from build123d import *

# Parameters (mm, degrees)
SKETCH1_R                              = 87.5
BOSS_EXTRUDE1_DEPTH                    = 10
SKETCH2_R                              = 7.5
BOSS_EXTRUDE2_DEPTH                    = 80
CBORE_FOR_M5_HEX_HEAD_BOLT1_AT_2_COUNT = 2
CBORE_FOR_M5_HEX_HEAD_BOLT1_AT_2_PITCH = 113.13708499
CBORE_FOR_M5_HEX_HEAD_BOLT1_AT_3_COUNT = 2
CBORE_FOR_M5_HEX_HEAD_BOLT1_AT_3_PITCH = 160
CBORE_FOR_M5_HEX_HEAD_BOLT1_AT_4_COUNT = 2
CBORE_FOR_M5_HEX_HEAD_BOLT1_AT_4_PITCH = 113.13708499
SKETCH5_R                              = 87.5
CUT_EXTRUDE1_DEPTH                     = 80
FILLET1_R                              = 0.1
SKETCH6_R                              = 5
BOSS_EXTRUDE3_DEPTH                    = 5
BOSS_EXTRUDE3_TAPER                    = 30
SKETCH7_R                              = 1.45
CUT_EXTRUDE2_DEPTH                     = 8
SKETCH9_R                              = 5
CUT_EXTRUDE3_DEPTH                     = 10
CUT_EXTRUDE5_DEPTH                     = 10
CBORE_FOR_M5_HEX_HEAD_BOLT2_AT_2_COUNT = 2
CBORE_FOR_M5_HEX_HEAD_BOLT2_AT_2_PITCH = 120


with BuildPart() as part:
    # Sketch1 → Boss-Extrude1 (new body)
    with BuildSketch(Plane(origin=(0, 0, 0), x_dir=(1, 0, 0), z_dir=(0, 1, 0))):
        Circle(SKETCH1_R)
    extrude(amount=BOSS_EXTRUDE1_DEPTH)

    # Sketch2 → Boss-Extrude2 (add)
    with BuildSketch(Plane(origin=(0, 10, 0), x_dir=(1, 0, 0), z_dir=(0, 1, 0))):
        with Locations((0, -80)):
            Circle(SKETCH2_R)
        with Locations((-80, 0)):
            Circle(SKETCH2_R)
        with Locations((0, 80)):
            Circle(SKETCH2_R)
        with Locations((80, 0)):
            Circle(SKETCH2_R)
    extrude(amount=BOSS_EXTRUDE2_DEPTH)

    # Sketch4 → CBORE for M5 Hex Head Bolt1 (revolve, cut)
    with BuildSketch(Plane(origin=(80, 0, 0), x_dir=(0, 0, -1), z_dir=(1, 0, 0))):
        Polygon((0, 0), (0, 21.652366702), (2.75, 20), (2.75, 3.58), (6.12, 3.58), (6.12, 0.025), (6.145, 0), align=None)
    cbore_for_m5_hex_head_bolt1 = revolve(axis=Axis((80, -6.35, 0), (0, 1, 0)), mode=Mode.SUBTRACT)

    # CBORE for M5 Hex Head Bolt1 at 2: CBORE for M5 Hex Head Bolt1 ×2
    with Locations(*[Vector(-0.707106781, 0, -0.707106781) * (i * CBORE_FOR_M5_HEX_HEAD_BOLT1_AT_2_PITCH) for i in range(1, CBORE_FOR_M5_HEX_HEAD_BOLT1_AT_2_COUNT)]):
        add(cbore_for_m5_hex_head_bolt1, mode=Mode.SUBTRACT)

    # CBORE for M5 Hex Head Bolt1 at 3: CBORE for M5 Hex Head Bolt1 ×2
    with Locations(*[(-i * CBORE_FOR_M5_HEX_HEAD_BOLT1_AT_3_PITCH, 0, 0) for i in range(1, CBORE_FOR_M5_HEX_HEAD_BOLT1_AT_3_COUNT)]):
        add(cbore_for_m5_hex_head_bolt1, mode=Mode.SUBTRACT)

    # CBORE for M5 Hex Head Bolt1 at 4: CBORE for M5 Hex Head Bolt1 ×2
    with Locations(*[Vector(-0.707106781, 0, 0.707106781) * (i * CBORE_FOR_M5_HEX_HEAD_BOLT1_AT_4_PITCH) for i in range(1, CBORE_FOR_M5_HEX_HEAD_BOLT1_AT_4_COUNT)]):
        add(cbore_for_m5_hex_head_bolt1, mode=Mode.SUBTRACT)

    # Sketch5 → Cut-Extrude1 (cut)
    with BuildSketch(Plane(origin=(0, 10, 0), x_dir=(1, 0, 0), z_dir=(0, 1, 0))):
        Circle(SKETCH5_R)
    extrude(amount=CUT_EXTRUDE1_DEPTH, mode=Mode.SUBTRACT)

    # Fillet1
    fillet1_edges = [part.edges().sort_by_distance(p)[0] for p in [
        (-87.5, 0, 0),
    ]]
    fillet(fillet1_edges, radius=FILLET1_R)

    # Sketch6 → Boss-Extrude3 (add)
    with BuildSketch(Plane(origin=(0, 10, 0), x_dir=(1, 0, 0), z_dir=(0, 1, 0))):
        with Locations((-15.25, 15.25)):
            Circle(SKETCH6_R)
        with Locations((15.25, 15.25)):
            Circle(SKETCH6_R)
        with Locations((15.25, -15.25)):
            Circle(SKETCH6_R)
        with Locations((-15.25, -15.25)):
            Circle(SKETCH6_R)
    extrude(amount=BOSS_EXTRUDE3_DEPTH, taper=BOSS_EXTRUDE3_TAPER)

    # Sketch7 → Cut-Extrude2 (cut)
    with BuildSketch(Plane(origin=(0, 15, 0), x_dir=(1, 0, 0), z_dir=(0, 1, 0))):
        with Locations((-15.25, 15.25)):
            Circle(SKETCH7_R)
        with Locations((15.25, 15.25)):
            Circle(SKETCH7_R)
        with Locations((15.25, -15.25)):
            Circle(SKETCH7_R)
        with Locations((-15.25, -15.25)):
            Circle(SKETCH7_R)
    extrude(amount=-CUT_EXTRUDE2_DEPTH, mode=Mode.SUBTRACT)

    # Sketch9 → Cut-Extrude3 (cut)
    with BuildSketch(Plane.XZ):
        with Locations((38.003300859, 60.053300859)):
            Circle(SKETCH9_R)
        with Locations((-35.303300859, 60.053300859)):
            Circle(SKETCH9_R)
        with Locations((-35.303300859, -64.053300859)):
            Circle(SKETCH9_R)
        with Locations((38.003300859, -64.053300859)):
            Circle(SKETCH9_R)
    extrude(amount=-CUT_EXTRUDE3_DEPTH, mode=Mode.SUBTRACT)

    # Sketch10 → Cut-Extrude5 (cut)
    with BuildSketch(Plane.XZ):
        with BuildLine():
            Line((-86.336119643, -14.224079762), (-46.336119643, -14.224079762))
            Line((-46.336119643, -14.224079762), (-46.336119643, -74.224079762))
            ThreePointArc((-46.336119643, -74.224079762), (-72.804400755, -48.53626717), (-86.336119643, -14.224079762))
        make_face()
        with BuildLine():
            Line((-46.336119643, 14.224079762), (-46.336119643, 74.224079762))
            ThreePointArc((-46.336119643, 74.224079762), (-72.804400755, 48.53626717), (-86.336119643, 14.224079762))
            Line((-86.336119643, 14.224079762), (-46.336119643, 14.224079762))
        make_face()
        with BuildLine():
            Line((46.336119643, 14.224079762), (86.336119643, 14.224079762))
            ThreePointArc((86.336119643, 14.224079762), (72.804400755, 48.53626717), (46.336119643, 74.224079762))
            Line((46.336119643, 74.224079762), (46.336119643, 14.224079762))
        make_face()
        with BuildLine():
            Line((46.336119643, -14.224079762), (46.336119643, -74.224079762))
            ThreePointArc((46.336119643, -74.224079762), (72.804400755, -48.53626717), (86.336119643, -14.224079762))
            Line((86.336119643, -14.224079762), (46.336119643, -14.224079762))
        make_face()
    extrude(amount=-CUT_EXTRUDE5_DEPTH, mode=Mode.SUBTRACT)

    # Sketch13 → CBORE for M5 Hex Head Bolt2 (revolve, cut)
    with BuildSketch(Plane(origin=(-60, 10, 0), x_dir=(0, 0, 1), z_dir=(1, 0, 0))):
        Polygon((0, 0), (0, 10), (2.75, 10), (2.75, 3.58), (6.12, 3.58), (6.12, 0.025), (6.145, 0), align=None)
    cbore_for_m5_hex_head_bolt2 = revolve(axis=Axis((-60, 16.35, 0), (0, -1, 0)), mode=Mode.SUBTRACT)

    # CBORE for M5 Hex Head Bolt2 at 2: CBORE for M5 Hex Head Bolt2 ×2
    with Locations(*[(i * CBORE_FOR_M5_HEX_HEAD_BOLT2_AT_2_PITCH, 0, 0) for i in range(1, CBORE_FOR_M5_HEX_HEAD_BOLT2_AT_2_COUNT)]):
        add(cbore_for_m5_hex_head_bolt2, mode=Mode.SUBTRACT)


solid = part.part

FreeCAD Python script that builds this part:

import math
import FreeCAD as App
import Part
import Sketcher
from FreeCAD import Vector
Q = App.Units.Quantity


def edges_at(feature, points):
    """Names of the edges that pass closest to the given points."""
    edges = feature.Shape.Edges
    near = lambda p: min(range(len(edges)), key=lambda i: edges[i].distToShape(Part.Vertex(*p))[0])
    return sorted({f"Edge{near(p) + 1}" for p in points})


def add_polygon(sketch, points):
    """Adds a closed chain of lines whose ends are joined by coincident constraints."""
    first, n = sketch.GeometryCount, len(points)
    for a, b in zip(points, points[1:] + points[:1]):
        sketch.addGeometry(Part.LineSegment(App.Vector(*a, 0), App.Vector(*b, 0)), False)
    for i in range(n):
        sketch.addConstraint(Sketcher.Constraint("Coincident", first + i, 2, first + (i + 1) % n, 1))

doc = App.newDocument("Part")
body = doc.addObject("PartDesign::Body", "Body")

# Sketch on XZ plane
sketch1 = body.newObject("Sketcher::SketchObject", "Sketch")
sketch1.AttachmentSupport = (doc.getObject("XZ_Plane"), [""])
sketch1.MapMode = "FlatFace"
sketch1.addGeometry(Part.Circle(Vector(0, 0, 0), Vector(0, 0, 1), 88), False)
sketch1.addConstraint([
    Sketcher.Constraint("Coincident", 0, 3, -1, 1),
    Sketcher.Constraint("Diameter", 0, Q("175 mm")),
])
pad1 = body.newObject("PartDesign::Pad", "Pad")
pad1.Profile = sketch1
pad1.Length = 10
pad1.Reversed = True

# Sketch on XZ plane
sketch2 = body.newObject("Sketcher::SketchObject", "Sketch001")
sketch2.AttachmentSupport = (doc.getObject("XZ_Plane"), [""])
sketch2.MapMode = "FlatFace"
sketch2.AttachmentOffset = App.Placement(Vector(0, 0, -10), App.Rotation())
sketch2.addGeometry([
    Part.Circle(Vector(0, 80, 0), Vector(0, 0, 1), 8),
    Part.Circle(Vector(-80, 0, 0), Vector(0, 0, 1), 8),
    Part.Circle(Vector(0, -80, 0), Vector(0, 0, 1), 8),
    Part.Circle(Vector(80, 0, 0), Vector(0, 0, 1), 8),
], False)
sketch2.addConstraint([
    Sketcher.Constraint("Equal", 0, 1),
    Sketcher.Constraint("Equal", 1, 2),
    Sketcher.Constraint("Equal", 2, 3),
    Sketcher.Constraint("Symmetric", 0, 3, 2, 3, -1, 1),
    Sketcher.Constraint("Symmetric", 1, 3, 3, 3, -1, 1),
    Sketcher.Constraint("PointOnObject", 0, 3, -2),
    Sketcher.Constraint("PointOnObject", 1, 3, -1),
    Sketcher.Constraint("Diameter", 0, Q("15 mm")),
    Sketcher.Constraint("DistanceY", -1, 1, 0, 3, Q("80 mm")),
    Sketcher.Constraint("DistanceX", 1, 3, -1, 1, Q("80 mm")),
])
pad2 = body.newObject("PartDesign::Pad", "Pad001")
pad2.Profile = sketch2
pad2.Length = 80
pad2.Reversed = True

# Sketch on YZ plane
sketch3 = body.newObject("Sketcher::SketchObject", "Sketch002")
sketch3.AttachmentSupport = (doc.getObject("YZ_Plane"), [""])
sketch3.MapMode = "FlatFace"
sketch3.AttachmentOffset = App.Placement(Vector(0, 0, 80), App.Rotation())
add_polygon(sketch3, [(21.652, 0), (0, 0), (0, -6.145), (0.025, -6.12), (3.58, -6.12), (3.58, -2.75), (20, -2.75)])  # lines 0-6
sketch3.addConstraint([
    Sketcher.Constraint("Horizontal", 0),
    Sketcher.Constraint("Vertical", 1),
    Sketcher.Constraint("Horizontal", 3),
    Sketcher.Constraint("Vertical", 4),
    Sketcher.Constraint("Horizontal", 5),
    Sketcher.Constraint("Coincident", 0, 2, -1, 1),
    Sketcher.Constraint("Angle", 2, Q("45 deg")),
    Sketcher.Constraint("Angle", 6, Q("59 deg")),
    Sketcher.Constraint("DistanceX", -1, 1, 5, 2, Q("20 mm")),
    Sketcher.Constraint("DistanceX", 5, 1, 5, 2, Q("16.42 mm")),
    Sketcher.Constraint("DistanceY", 4, 1, 4, 2, Q("3.37 mm")),
    Sketcher.Constraint("DistanceX", 3, 1, 3, 2, Q("3.555 mm")),
    Sketcher.Constraint("DistanceY", 1, 2, 1, 1, Q("6.145 mm")),
])
groove = body.newObject("PartDesign::Groove", "Groove")
groove.Profile = sketch3
groove.ReferenceAxis = (sketch3, ["H_Axis"])
groove.Angle = 360
doc.recompute()

datumline = body.newObject("PartDesign::Line", "DatumLine")
datumline.Placement = App.Placement(Vector(0, 0, 0), App.Rotation(Vector(0, 0, 1), Vector(-0.707106781, 0, -0.707106781)))
linearpattern = body.newObject("PartDesign::LinearPattern", "LinearPattern")
linearpattern.Originals = [groove]
linearpattern.Direction = (datumline, [""])
linearpattern.Mode = "offset"
linearpattern.Offset = 113.137085
linearpattern.Occurrences = 2
body.Tip = linearpattern
doc.recompute()

linearpattern2 = body.newObject("PartDesign::LinearPattern", "LinearPattern001")
linearpattern2.Originals = [groove]
linearpattern2.Direction = (doc.getObject("X_Axis"), [""])
linearpattern2.Mode = "offset"
linearpattern2.Offset = 160
linearpattern2.Occurrences = 2
linearpattern2.Reversed = True
body.Tip = linearpattern2
doc.recompute()

datumline2 = body.newObject("PartDesign::Line", "DatumLine001")
datumline2.Placement = App.Placement(Vector(0, 0, 0), App.Rotation(Vector(0, 0, 1), Vector(-0.707106781, 0, 0.707106781)))
linearpattern3 = body.newObject("PartDesign::LinearPattern", "LinearPattern002")
linearpattern3.Originals = [groove]
linearpattern3.Direction = (datumline2, [""])
linearpattern3.Mode = "offset"
linearpattern3.Offset = 113.137085
linearpattern3.Occurrences = 2
body.Tip = linearpattern3

# Sketch on XZ plane
sketch4 = body.newObject("Sketcher::SketchObject", "Sketch003")
sketch4.AttachmentSupport = (doc.getObject("XZ_Plane"), [""])
sketch4.MapMode = "FlatFace"
sketch4.AttachmentOffset = App.Placement(Vector(0, 0, -10), App.Rotation())
sketch4.addGeometry(Part.Circle(Vector(0, 0, 0), Vector(0, 0, 1), 88), False)
sketch4.addConstraint([
    Sketcher.Constraint("Coincident", 0, 3, -1, 1),
    Sketcher.Constraint("Diameter", 0, Q("175 mm")),
])
pocket1 = body.newObject("PartDesign::Pocket", "Pocket")
pocket1.Profile = sketch4
pocket1.Length = 80
doc.recompute()

fillet = body.newObject("PartDesign::Fillet", "Fillet")
fillet.Base = (pocket1, edges_at(pocket1, [(-87.5, 0, 0)]))
fillet.Radius = 0.1

# Sketch on XZ plane
sketch5 = body.newObject("Sketcher::SketchObject", "Sketch004")
sketch5.AttachmentSupport = (doc.getObject("XZ_Plane"), [""])
sketch5.MapMode = "FlatFace"
sketch5.AttachmentOffset = App.Placement(Vector(0, 0, -10), App.Rotation())
sketch5.addGeometry([
    Part.Circle(Vector(-15, -15, 0), Vector(0, 0, 1), 5),
    Part.Circle(Vector(15, -15, 0), Vector(0, 0, 1), 5),
    Part.Circle(Vector(15, 15, 0), Vector(0, 0, 1), 5),
    Part.Circle(Vector(-15, 15, 0), Vector(0, 0, 1), 5),
], False)
sketch5.addConstraint([
    Sketcher.Constraint("Equal", 0, 1),
    Sketcher.Constraint("Equal", 1, 2),
    Sketcher.Constraint("Equal", 2, 3),
    Sketcher.Constraint("Symmetric", 0, 3, 2, 3, -1, 1),
    Sketcher.Constraint("Symmetric", 1, 3, 3, 3, -1, 1),
    Sketcher.Constraint("Symmetric", 0, 3, 1, 3, -2),
    Sketcher.Constraint("Diameter", 0, Q("10 mm")),
    Sketcher.Constraint("DistanceX", 0, 3, 1, 3, Q("30.5 mm")),
    Sketcher.Constraint("DistanceY", 1, 3, 2, 3, Q("30.5 mm")),
])
pad3 = body.newObject("PartDesign::Pad", "Pad002")
pad3.Profile = sketch5
pad3.Length = 5
pad3.Reversed = True
pad3.TaperAngle = -30

# Sketch on XZ plane
sketch6 = body.newObject("Sketcher::SketchObject", "Sketch005")
sketch6.AttachmentSupport = (doc.getObject("XZ_Plane"), [""])
sketch6.MapMode = "FlatFace"
sketch6.AttachmentOffset = App.Placement(Vector(0, 0, -15), App.Rotation())
sketch6.addGeometry([
    Part.Circle(Vector(-15.2, -15.2, 0), Vector(0, 0, 1), 1.4),
    Part.Circle(Vector(15.2, -15.2, 0), Vector(0, 0, 1), 1.4),
    Part.Circle(Vector(15.2, 15.2, 0), Vector(0, 0, 1), 1.4),
    Part.Circle(Vector(-15.2, 15.2, 0), Vector(0, 0, 1), 1.4),
], False)
sketch6.addConstraint([
    Sketcher.Constraint("Equal", 0, 1),
    Sketcher.Constraint("Equal", 1, 2),
    Sketcher.Constraint("Equal", 2, 3),
    Sketcher.Constraint("Symmetric", 0, 3, 2, 3, -1, 1),
    Sketcher.Constraint("Symmetric", 1, 3, 3, 3, -1, 1),
    Sketcher.Constraint("Symmetric", 0, 3, 1, 3, -2),
    Sketcher.Constraint("Diameter", 0, Q("2.9 mm")),
    Sketcher.Constraint("DistanceX", 0, 3, 1, 3, Q("30.5 mm")),
    Sketcher.Constraint("DistanceY", 1, 3, 2, 3, Q("30.5 mm")),
])
pocket2 = body.newObject("PartDesign::Pocket", "Pocket001")
pocket2.Profile = sketch6
pocket2.Length = 8
pocket2.Reversed = True

# Sketch on XZ plane
sketch7 = body.newObject("Sketcher::SketchObject", "Sketch006")
sketch7.AttachmentSupport = (doc.getObject("XZ_Plane"), [""])
sketch7.MapMode = "FlatFace"
sketch7.addGeometry([
    Part.Circle(Vector(38, 60, 0), Vector(0, 0, 1), 5),
    Part.Circle(Vector(-35, 60, 0), Vector(0, 0, 1), 5),
    Part.Circle(Vector(-35, -64, 0), Vector(0, 0, 1), 5),
    Part.Circle(Vector(38, -64, 0), Vector(0, 0, 1), 5),
], False)
sketch7.addConstraint([
    Sketcher.Constraint("Equal", 0, 1),
    Sketcher.Constraint("Equal", 1, 2),
    Sketcher.Constraint("Equal", 2, 3),
    Sketcher.Constraint("Horizontal", 0, 3, 1, 3),
    Sketcher.Constraint("Horizontal", 2, 3, 3, 3),
    Sketcher.Constraint("Vertical", 1, 3, 2, 3),
    Sketcher.Constraint("Vertical", 0, 3, 3, 3),
    Sketcher.Constraint("Diameter", 0, Q("10 mm")),
    Sketcher.Constraint("DistanceX", -1, 1, 0, 3, Q("38.003301 mm")),
    Sketcher.Constraint("DistanceY", -1, 1, 0, 3, Q("60.053301 mm")),
    Sketcher.Constraint("DistanceX", 1, 3, -1, 1, Q("35.303301 mm")),
    Sketcher.Constraint("DistanceY", 2, 3, -1, 1, Q("64.053301 mm")),
])
pocket3 = body.newObject("PartDesign::Pocket", "Pocket002")
pocket3.Profile = sketch7
pocket3.Length = 10

# Sketch on XZ plane
sketch8 = body.newObject("Sketcher::SketchObject", "Sketch007")
sketch8.AttachmentSupport = (doc.getObject("XZ_Plane"), [""])
sketch8.MapMode = "FlatFace"
sketch8.addGeometry([
    Part.LineSegment(Vector(-46, -14, 0), Vector(-86, -14, 0)),  # 0
    Part.ArcOfCircle(Part.Circle(Vector(0, 0, 0), Vector(0, 0, 1), 88), math.radians(-171), math.radians(-122)),  # 1
    Part.LineSegment(Vector(-46, -74, 0), Vector(-46, -14, 0)),  # 2
    Part.LineSegment(Vector(-46, 14, 0), Vector(-46, 74, 0)),  # 3
    Part.ArcOfCircle(Part.Circle(Vector(0, 0, 0), Vector(0, 0, 1), 88), math.radians(122), math.radians(171)),  # 4
    Part.LineSegment(Vector(-86, 14, 0), Vector(-46, 14, 0)),  # 5
    Part.LineSegment(Vector(46, 14, 0), Vector(86, 14, 0)),  # 6
    Part.ArcOfCircle(Part.Circle(Vector(0, 0, 0), Vector(0, 0, 1), 88), math.radians(9), math.radians(58)),  # 7
    Part.LineSegment(Vector(46, 74, 0), Vector(46, 14, 0)),  # 8
    Part.LineSegment(Vector(46, -14, 0), Vector(46, -74, 0)),  # 9
    Part.ArcOfCircle(Part.Circle(Vector(0, 0, 0), Vector(0, 0, 1), 88), math.radians(-58), math.radians(-9)),  # 10
    Part.LineSegment(Vector(86, -14, 0), Vector(46, -14, 0)),  # 11
], False)
sketch8.addConstraint([
    Sketcher.Constraint("Coincident", 0, 2, 1, 1),
    Sketcher.Constraint("Coincident", 1, 2, 2, 1),
    Sketcher.Constraint("Coincident", 2, 2, 0, 1),
    Sketcher.Constraint("Coincident", 3, 2, 4, 1),
    Sketcher.Constraint("Coincident", 4, 2, 5, 1),
    Sketcher.Constraint("Coincident", 5, 2, 3, 1),
    Sketcher.Constraint("Coincident", 6, 2, 7, 1),
    Sketcher.Constraint("Coincident", 7, 2, 8, 1),
    Sketcher.Constraint("Coincident", 8, 2, 6, 1),
    Sketcher.Constraint("Coincident", 9, 2, 10, 1),
    Sketcher.Constraint("Coincident", 10, 2, 11, 1),
    Sketcher.Constraint("Coincident", 11, 2, 9, 1),
    Sketcher.Constraint("Horizontal", 0),
    Sketcher.Constraint("Vertical", 2),
    Sketcher.Constraint("Vertical", 3),
    Sketcher.Constraint("Horizontal", 5),
    Sketcher.Constraint("Horizontal", 6),
    Sketcher.Constraint("Vertical", 8),
    Sketcher.Constraint("Vertical", 9),
    Sketcher.Constraint("Horizontal", 11),
    Sketcher.Constraint("Coincident", 1, 3, -1, 1),
    Sketcher.Constraint("Coincident", 4, 3, -1, 1),
    Sketcher.Constraint("Coincident", 7, 3, -1, 1),
    Sketcher.Constraint("Coincident", 10, 3, -1, 1),
    Sketcher.Constraint("Equal", 1, 4),
    Sketcher.Constraint("Equal", 4, 7),
    Sketcher.Constraint("Equal", 7, 10),
    Sketcher.Constraint("Symmetric", 2, 2, 8, 2, -1, 1),
    Sketcher.Constraint("Symmetric", 5, 2, 11, 2, -1, 1),
    Sketcher.Constraint("Symmetric", 5, 2, 8, 2, -2),
    Sketcher.Constraint("Radius", 1, Q("87.5 mm")),
    Sketcher.Constraint("DistanceX", 0, 2, 0, 1, Q("40 mm")),
    Sketcher.Constraint("DistanceY", 2, 1, 2, 2, Q("60 mm")),
])
pocket4 = body.newObject("PartDesign::Pocket", "Pocket003")
pocket4.Profile = sketch8
pocket4.Length = 10

# Sketch on YZ plane
sketch9 = body.newObject("Sketcher::SketchObject", "Sketch008")
sketch9.AttachmentSupport = (doc.getObject("YZ_Plane"), [""])
sketch9.MapMode = "FlatFace"
sketch9.AttachmentOffset = App.Placement(Vector(0, 0, -60), App.Rotation())
add_polygon(sketch9, [(0, 0), (10, 0), (10, 6.145), (9.975, 6.12), (6.42, 6.12), (6.42, 2.75), (0, 2.75)])  # lines 0-6
sketch9.addConstraint([
    Sketcher.Constraint("Horizontal", 0),
    Sketcher.Constraint("Vertical", 1),
    Sketcher.Constraint("Horizontal", 3),
    Sketcher.Constraint("Vertical", 4),
    Sketcher.Constraint("Horizontal", 5),
    Sketcher.Constraint("Vertical", 6),
    Sketcher.Constraint("Coincident", 6, 2, -1, 1),
    Sketcher.Constraint("DistanceX", 0, 1, 0, 2, Q("10 mm")),
    Sketcher.Constraint("Angle", 2, Q("-135 deg")),
    Sketcher.Constraint("DistanceX", 5, 2, 5, 1, Q("6.42 mm")),
    Sketcher.Constraint("DistanceY", 4, 2, 4, 1, Q("3.37 mm")),
    Sketcher.Constraint("DistanceY", 6, 2, 6, 1, Q("2.75 mm")),
    Sketcher.Constraint("DistanceX", 3, 2, 3, 1, Q("3.555 mm")),
])
groove2 = body.newObject("PartDesign::Groove", "Groove001")
groove2.Profile = sketch9
groove2.ReferenceAxis = (sketch9, ["H_Axis"])
groove2.Angle = 360
doc.recompute()

linearpattern4 = body.newObject("PartDesign::LinearPattern", "LinearPattern003")
linearpattern4.Originals = [groove2]
linearpattern4.Direction = (doc.getObject("X_Axis"), [""])
linearpattern4.Mode = "offset"
linearpattern4.Offset = 120
linearpattern4.Occurrences = 2
body.Tip = linearpattern4

doc.recompute()
